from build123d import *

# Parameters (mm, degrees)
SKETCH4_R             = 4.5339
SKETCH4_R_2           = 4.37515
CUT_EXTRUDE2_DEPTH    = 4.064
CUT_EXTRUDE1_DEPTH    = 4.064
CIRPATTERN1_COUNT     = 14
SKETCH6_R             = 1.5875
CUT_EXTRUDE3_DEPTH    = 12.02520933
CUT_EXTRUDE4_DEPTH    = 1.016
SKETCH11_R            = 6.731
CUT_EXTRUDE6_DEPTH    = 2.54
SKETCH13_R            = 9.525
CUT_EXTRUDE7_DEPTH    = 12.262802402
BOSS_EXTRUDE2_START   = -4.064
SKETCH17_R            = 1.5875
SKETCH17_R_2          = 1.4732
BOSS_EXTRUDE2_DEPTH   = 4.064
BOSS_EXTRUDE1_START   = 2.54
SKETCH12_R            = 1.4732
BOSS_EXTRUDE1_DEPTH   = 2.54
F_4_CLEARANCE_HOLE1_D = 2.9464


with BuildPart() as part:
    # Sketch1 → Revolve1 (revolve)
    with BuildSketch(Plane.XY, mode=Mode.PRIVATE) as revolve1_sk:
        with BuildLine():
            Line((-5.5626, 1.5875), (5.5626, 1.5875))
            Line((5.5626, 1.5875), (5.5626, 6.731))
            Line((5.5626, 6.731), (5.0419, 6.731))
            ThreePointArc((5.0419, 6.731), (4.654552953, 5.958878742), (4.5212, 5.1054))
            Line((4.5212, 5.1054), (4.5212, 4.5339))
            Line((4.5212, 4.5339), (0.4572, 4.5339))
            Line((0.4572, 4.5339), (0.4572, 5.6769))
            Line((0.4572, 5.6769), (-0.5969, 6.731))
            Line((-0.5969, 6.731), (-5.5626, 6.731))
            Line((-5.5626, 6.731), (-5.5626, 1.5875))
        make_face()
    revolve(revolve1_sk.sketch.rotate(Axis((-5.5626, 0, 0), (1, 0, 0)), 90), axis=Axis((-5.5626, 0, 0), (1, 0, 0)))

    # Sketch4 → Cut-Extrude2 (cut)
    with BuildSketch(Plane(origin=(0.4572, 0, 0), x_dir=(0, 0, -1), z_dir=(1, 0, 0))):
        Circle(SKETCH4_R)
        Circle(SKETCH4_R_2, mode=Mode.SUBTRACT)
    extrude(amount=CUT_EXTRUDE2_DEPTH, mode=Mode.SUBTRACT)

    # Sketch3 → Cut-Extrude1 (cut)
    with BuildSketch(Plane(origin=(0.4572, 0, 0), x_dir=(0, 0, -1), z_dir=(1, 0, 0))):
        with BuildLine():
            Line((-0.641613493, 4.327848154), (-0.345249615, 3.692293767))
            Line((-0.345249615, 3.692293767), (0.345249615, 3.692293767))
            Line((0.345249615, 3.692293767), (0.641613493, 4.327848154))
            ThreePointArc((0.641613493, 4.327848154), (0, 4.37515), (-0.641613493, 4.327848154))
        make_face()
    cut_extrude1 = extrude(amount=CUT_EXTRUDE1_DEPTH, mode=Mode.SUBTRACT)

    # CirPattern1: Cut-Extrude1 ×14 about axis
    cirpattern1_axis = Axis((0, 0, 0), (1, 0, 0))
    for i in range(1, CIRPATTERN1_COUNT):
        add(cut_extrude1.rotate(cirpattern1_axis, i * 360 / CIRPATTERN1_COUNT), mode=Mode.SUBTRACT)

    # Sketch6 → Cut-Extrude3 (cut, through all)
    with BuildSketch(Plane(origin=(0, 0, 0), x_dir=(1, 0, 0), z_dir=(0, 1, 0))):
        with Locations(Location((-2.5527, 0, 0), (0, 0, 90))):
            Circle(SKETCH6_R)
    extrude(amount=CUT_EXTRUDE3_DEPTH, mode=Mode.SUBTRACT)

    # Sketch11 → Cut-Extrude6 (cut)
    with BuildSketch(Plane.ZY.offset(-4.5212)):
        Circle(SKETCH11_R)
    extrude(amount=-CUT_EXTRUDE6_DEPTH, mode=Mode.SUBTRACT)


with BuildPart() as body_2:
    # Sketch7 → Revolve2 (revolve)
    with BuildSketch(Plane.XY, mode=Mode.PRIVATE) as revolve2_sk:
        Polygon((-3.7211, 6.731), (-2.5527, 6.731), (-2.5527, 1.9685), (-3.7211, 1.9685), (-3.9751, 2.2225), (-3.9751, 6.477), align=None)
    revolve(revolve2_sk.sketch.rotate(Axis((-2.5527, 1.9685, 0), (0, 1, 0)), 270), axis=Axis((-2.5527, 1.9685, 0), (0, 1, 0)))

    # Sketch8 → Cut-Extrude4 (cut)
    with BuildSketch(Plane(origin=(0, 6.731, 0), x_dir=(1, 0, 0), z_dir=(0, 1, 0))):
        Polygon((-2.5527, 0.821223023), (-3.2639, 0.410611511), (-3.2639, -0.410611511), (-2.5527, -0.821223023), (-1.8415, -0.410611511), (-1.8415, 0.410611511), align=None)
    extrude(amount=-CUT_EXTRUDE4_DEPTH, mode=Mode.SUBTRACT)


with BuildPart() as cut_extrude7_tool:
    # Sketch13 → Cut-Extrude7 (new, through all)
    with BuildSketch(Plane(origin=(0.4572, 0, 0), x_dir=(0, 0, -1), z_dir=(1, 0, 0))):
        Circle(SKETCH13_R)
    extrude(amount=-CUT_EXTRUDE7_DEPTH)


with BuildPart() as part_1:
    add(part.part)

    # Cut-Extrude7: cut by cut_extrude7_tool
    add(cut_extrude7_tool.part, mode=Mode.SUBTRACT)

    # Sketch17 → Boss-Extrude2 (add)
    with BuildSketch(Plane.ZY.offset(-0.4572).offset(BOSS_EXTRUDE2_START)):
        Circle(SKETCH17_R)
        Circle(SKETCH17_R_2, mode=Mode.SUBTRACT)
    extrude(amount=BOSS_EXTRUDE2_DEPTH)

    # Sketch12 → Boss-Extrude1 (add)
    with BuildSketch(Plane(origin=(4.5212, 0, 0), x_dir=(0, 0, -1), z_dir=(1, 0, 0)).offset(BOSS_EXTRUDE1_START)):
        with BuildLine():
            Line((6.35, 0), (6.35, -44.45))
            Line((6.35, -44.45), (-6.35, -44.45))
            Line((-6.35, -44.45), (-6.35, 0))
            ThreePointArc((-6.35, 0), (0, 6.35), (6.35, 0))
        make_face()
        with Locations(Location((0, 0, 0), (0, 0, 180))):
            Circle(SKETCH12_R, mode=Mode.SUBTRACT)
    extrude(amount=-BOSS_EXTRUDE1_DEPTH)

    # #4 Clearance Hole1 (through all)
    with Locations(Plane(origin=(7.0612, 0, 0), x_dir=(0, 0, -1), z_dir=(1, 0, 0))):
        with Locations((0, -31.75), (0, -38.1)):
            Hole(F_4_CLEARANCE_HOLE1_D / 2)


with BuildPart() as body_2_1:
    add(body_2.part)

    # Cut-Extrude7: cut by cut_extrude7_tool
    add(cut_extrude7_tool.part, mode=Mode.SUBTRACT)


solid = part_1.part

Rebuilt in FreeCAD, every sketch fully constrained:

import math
import FreeCAD as App
import Part
import Sketcher
Q = App.Units.Quantity

doc = App.newDocument("Part")
body = doc.addObject("PartDesign::Body", "Body")

sketch1 = body.newObject("Sketcher::SketchObject", "Sketch")
sketch1.AttachmentSupport = (doc.getObject("XY_Plane"), [""])
sketch1.MapMode = "FlatFace"
sketch1.addGeometry(Part.LineSegment(App.Vector(-5.6, 1.6, 0), App.Vector(5.6, 1.6, 0)), False)
sketch1.addGeometry(Part.LineSegment(App.Vector(5.6, 1.6, 0), App.Vector(5.6, 6.7, 0)), False)
sketch1.addGeometry(Part.LineSegment(App.Vector(5.6, 6.7, 0), App.Vector(5, 6.7, 0)), False)
sketch1.addGeometry(Part.ArcOfCircle(Part.Circle(App.Vector(7.3, 5.1, 0), App.Vector(0, 0, 1), 2.8), math.radians(144), math.radians(180)), False)
sketch1.addGeometry(Part.LineSegment(App.Vector(4.5, 5.1, 0), App.Vector(4.5, 4.5, 0)), False)
sketch1.addGeometry(Part.LineSegment(App.Vector(4.5, 4.5, 0), App.Vector(0.5, 4.5, 0)), False)
sketch1.addGeometry(Part.LineSegment(App.Vector(0.5, 4.5, 0), App.Vector(0.5, 5.7, 0)), False)
sketch1.addGeometry(Part.LineSegment(App.Vector(0.5, 5.7, 0), App.Vector(-0.6, 6.7, 0)), False)
sketch1.addGeometry(Part.LineSegment(App.Vector(-0.6, 6.7, 0), App.Vector(-5.6, 6.7, 0)), False)
sketch1.addGeometry(Part.LineSegment(App.Vector(-5.6, 6.7, 0), App.Vector(-5.6, 1.6, 0)), False)
sketch1.addConstraint(Sketcher.Constraint("Coincident", 0, 2, 1, 1))
sketch1.addConstraint(Sketcher.Constraint("Coincident", 1, 2, 2, 1))
sketch1.addConstraint(Sketcher.Constraint("Coincident", 2, 2, 3, 1))
sketch1.addConstraint(Sketcher.Constraint("Tangent", 3, 2, 4, 1))
sketch1.addConstraint(Sketcher.Constraint("Coincident", 4, 2, 5, 1))
sketch1.addConstraint(Sketcher.Constraint("Coincident", 5, 2, 6, 1))
sketch1.addConstraint(Sketcher.Constraint("Coincident", 6, 2, 7, 1))
sketch1.addConstraint(Sketcher.Constraint("Coincident", 7, 2, 8, 1))
sketch1.addConstraint(Sketcher.Constraint("Coincident", 8, 2, 9, 1))
sketch1.addConstraint(Sketcher.Constraint("Coincident", 9, 2, 0, 1))
sketch1.addConstraint(Sketcher.Constraint("Horizontal", 0))
sketch1.addConstraint(Sketcher.Constraint("Vertical", 1))
sketch1.addConstraint(Sketcher.Constraint("Horizontal", 2))
sketch1.addConstraint(Sketcher.Constraint("Vertical", 4))
sketch1.addConstraint(Sketcher.Constraint("Horizontal", 5))
sketch1.addConstraint(Sketcher.Constraint("Vertical", 6))
sketch1.addConstraint(Sketcher.Constraint("Horizontal", 8))
sketch1.addConstraint(Sketcher.Constraint("Vertical", 9))
sketch1.addConstraint(Sketcher.Constraint("Symmetric", 1, 2, 8, 2, -2))
sketch1.addConstraint(Sketcher.Constraint("Angle", 7, Q("135 deg")))
sketch1.addConstraint(Sketcher.Constraint("DistanceX", 5, 2, 5, 1, Q("0.16 in")))
sketch1.addConstraint(Sketcher.Constraint("DistanceX", 0, 1, 0, 2, Q("0.438 in")))
sketch1.addConstraint(Sketcher.Constraint("DistanceY", 6, 1, 6, 2, Q("0.045 in")))
sketch1.addConstraint(Sketcher.Constraint("DistanceX", 2, 2, 2, 1, Q("0.0205 in")))
sketch1.addConstraint(Sketcher.Constraint("DistanceX", 8, 2, 8, 1, Q("0.1955 in")))
sketch1.addConstraint(Sketcher.Constraint("DistanceY", 1, 1, 1, 2, Q("0.2025 in")))
sketch1.addConstraint(Sketcher.Constraint("DistanceY", 4, 2, 4, 1, Q("0.0225 in")))
sketch1.addConstraint(Sketcher.Constraint("DistanceY", -1, 1, 3, 3, Q("0.201 in")))
sketch1.addConstraint(Sketcher.Constraint("DistanceY", -1, 1, 0, 2, Q("0.0625 in")))
revolution = body.newObject("PartDesign::Revolution", "Revolution")
revolution.Profile = sketch1
revolution.ReferenceAxis = (sketch1, ["H_Axis"])
revolution.Angle = 360

sketch2 = body.newObject("Sketcher::SketchObject", "Sketch001")
sketch2.AttachmentSupport = (doc.getObject("YZ_Plane"), [""])
sketch2.MapMode = "FlatFace"
sketch2.AttachmentOffset = App.Placement(App.Vector(0, 0, 0.018 * 25.4), App.Rotation())
sketch2.addGeometry(Part.Circle(App.Vector(0, 0, 0), App.Vector(0, 0, 1), 4.5), False)
sketch2.addGeometry(Part.Circle(App.Vector(0, 0, 0), App.Vector(0, 0, 1), 4.4), False)
sketch2.addConstraint(Sketcher.Constraint("Coincident", 0, 3, -1, 1))
sketch2.addConstraint(Sketcher.Constraint("Coincident", 1, 3, -1, 1))
sketch2.addConstraint(Sketcher.Constraint("Diameter", 0, Q("0.357 in")))
sketch2.addConstraint(Sketcher.Constraint("Diameter", 1, Q("0.3445 in")))
pocket1 = body.newObject("PartDesign::Pocket", "Pocket")
pocket1.Profile = sketch2
pocket1.Length = Q("0.16 in")
pocket1.Reversed = True

sketch3 = body.newObject("Sketcher::SketchObject", "Sketch002")
sketch3.AttachmentSupport = (doc.getObject("YZ_Plane"), [""])
sketch3.MapMode = "FlatFace"
sketch3.AttachmentOffset = App.Placement(App.Vector(0, 0, 0.018 * 25.4), App.Rotation())
sketch3.addGeometry(Part.LineSegment(App.Vector(4.3, 0.6, 0), App.Vector(3.7, 0.3, 0)), False)
sketch3.addGeometry(Part.LineSegment(App.Vector(3.7, 0.3, 0), App.Vector(3.7, -0.3, 0)), False)
sketch3.addGeometry(Part.LineSegment(App.Vector(3.7, -0.3, 0), App.Vector(4.3, -0.6, 0)), False)
sketch3.addGeometry(Part.ArcOfCircle(Part.Circle(App.Vector(0, 0, 0), App.Vector(0, 0, 1), 4.4), math.radians(-8.43), math.radians(8.43)), False)
sketch3.addConstraint(Sketcher.Constraint("Coincident", 0, 2, 1, 1))
sketch3.addConstraint(Sketcher.Constraint("Coincident", 1, 2, 2, 1))
sketch3.addConstraint(Sketcher.Constraint("Coincident", 2, 2, 3, 1))
sketch3.addConstraint(Sketcher.Constraint("Coincident", 3, 2, 0, 1))
sketch3.addConstraint(Sketcher.Constraint("Vertical", 1))
sketch3.addConstraint(Sketcher.Constraint("Coincident", 3, 3, -1, 1))
sketch3.addConstraint(Sketcher.Constraint("Vertical", 2, 2, 3, 2))
sketch3.addConstraint(Sketcher.Constraint("Equal", 0, 2))
sketch3.addConstraint(Sketcher.Constraint("Angle", 0, Q("-155 deg")))
sketch3.addConstraint(Sketcher.Constraint("Radius", 3, Q("4.37515 mm")))
sketch3.addConstraint(Sketcher.Constraint("DistanceY", 1, 2, 1, 1, Q("0.690499 mm")))
sketch3.addConstraint(Sketcher.Constraint("DistanceX", -1, 1, 2, 2, Q("4.327848 mm")))
pocket2 = body.newObject("PartDesign::Pocket", "Pocket001")
pocket2.Profile = sketch3
pocket2.Length = Q("0.16 in")
pocket2.Reversed = True
doc.recompute()

polarpattern = body.newObject("PartDesign::PolarPattern", "PolarPattern")
polarpattern.Originals = [pocket2]
polarpattern.Axis = (doc.getObject("X_Axis"), [""])
polarpattern.Angle = 360
polarpattern.Occurrences = 14
body.Tip = polarpattern

sketch4 = body.newObject("Sketcher::SketchObject", "Sketch003")
sketch4.AttachmentSupport = (doc.getObject("XZ_Plane"), [""])
sketch4.MapMode = "FlatFace"
sketch4.addGeometry(Part.Circle(App.Vector(-2.6, 0, 0), App.Vector(0, 0, 1), 1.6), False)
sketch4.addConstraint(Sketcher.Constraint("PointOnObject", 0, 3, -1))
sketch4.addConstraint(Sketcher.Constraint("Diameter", 0, Q("0.125 in")))
sketch4.addConstraint(Sketcher.Constraint("DistanceX", 0, 3, -1, 1, Q("0.1005 in")))
pocket3 = body.newObject("PartDesign::Pocket", "Pocket002")
pocket3.Profile = sketch4
pocket3.Type = "ThroughAll"

sketch5 = body.newObject("Sketcher::SketchObject", "Sketch004")
sketch5.AttachmentSupport = (doc.getObject("YZ_Plane"), [""])
sketch5.MapMode = "FlatFace"
sketch5.AttachmentOffset = App.Placement(App.Vector(0, 0, 0.178 * 25.4), App.Rotation())
sketch5.addGeometry(Part.Circle(App.Vector(0, 0, 0), App.Vector(0, 0, 1), 7), False)
sketch5.addConstraint(Sketcher.Constraint("Coincident", 0, 3, -1, 1))
sketch5.addConstraint(Sketcher.Constraint("Diameter", 0, Q("0.53 in")))
pocket4 = body.newObject("PartDesign::Pocket", "Pocket003")
pocket4.Profile = sketch5
pocket4.Length = Q("0.1 in")
pocket4.Reversed = True
body2 = doc.addObject("PartDesign::Body", "Body001")

sketch6 = body2.newObject("Sketcher::SketchObject", "Sketch005")
sketch6.AttachmentSupport = (doc.getObject("XY_Plane001"), [""])
sketch6.MapMode = "FlatFace"
sketch6.addGeometry(Part.LineSegment(App.Vector(-2.55, 6.73, 0), App.Vector(-3.72, 6.73, 0)), False)
sketch6.addGeometry(Part.LineSegment(App.Vector(-3.72, 6.73, 0), App.Vector(-3.98, 6.48, 0)), False)
sketch6.addGeometry(Part.LineSegment(App.Vector(-3.98, 6.48, 0), App.Vector(-3.98, 2.22, 0)), False)
sketch6.addGeometry(Part.LineSegment(App.Vector(-3.98, 2.22, 0), App.Vector(-3.72, 1.97, 0)), False)
sketch6.addGeometry(Part.LineSegment(App.Vector(-3.72, 1.97, 0), App.Vector(-2.55, 1.97, 0)), False)
sketch6.addGeometry(Part.LineSegment(App.Vector(-2.55, 1.97, 0), App.Vector(-2.55, 6.73, 0)), False)
sketch6.addGeometry(Part.LineSegment(App.Vector(-2.55, 1.97, 0), App.Vector(-2.55, 6.73, 0)), True)
sketch6.addConstraint(Sketcher.Constraint("Coincident", 0, 2, 1, 1))
sketch6.addConstraint(Sketcher.Constraint("Coincident", 1, 2, 2, 1))
sketch6.addConstraint(Sketcher.Constraint("Coincident", 2, 2, 3, 1))
sketch6.addConstraint(Sketcher.Constraint("Coincident", 3, 2, 4, 1))
sketch6.addConstraint(Sketcher.Constraint("Coincident", 4, 2, 5, 1))
sketch6.addConstraint(Sketcher.Constraint("Coincident", 5, 2, 0, 1))
sketch6.addConstraint(Sketcher.Constraint("Horizontal", 0))
sketch6.addConstraint(Sketcher.Constraint("Vertical", 2))
sketch6.addConstraint(Sketcher.Constraint("Horizontal", 4))
sketch6.addConstraint(Sketcher.Constraint("Vertical", 5))
sketch6.addConstraint(Sketcher.Constraint("Vertical", 6))
sketch6.addConstraint(Sketcher.Constraint("Coincident", 6, 1, 4, 2))
sketch6.addConstraint(Sketcher.Constraint("Perpendicular", 1, 3))
sketch6.addConstraint(Sketcher.Constraint("Horizontal", 0, 2, 6, 2))
sketch6.addConstraint(Sketcher.Constraint("Vertical", 0, 2, 3, 2))
sketch6.addConstraint(Sketcher.Constraint("Equal", 1, 3))
sketch6.addConstraint(Sketcher.Constraint("DistanceX", 0, 2, 0, 1, Q("0.046 in")))
sketch6.addConstraint(Sketcher.Constraint("DistanceY", 5, 1, 5, 2, Q("0.1875 in")))
sketch6.addConstraint(Sketcher.Constraint("DistanceX", 1, 2, 0, 2, Q("0.01 in")))
sketch6.addConstraint(Sketcher.Constraint("DistanceY", -1, 1, 0, 2, Q("0.265 in")))
sketch6.addConstraint(Sketcher.Constraint("DistanceX", 0, 2, -1, 1, Q("0.1465 in")))
revolution2 = body2.newObject("PartDesign::Revolution", "Revolution001")
revolution2.Profile = sketch6
revolution2.ReferenceAxis = (sketch6, ["Axis0"])
revolution2.Angle = 360

sketch7 = body2.newObject("Sketcher::SketchObject", "Sketch006")
sketch7.AttachmentSupport = (doc.getObject("XZ_Plane001"), [""])
sketch7.MapMode = "FlatFace"
sketch7.AttachmentOffset = App.Placement(App.Vector(0, 0, -0.265 * 25.4), App.Rotation())
sketch7.addGeometry(Part.LineSegment(App.Vector(-2.6, -0.8, 0), App.Vector(-3.3, -0.4, 0)), False)
sketch7.addGeometry(Part.LineSegment(App.Vector(-3.3, -0.4, 0), App.Vector(-3.3, 0.4, 0)), False)
sketch7.addGeometry(Part.LineSegment(App.Vector(-3.3, 0.4, 0), App.Vector(-2.6, 0.8, 0)), False)
sketch7.addGeometry(Part.LineSegment(App.Vector(-2.6, 0.8, 0), App.Vector(-1.8, 0.4, 0)), False)
sketch7.addGeometry(Part.LineSegment(App.Vector(-1.8, 0.4, 0), App.Vector(-1.8, -0.4, 0)), False)
sketch7.addGeometry(Part.LineSegment(App.Vector(-1.8, -0.4, 0), App.Vector(-2.6, -0.8, 0)), False)
sketch7.addConstraint(Sketcher.Constraint("Coincident", 0, 2, 1, 1))
sketch7.addConstraint(Sketcher.Constraint("Coincident", 1, 2, 2, 1))
sketch7.addConstraint(Sketcher.Constraint("Coincident", 2, 2, 3, 1))
sketch7.addConstraint(Sketcher.Constraint("Coincident", 3, 2, 4, 1))
sketch7.addConstraint(Sketcher.Constraint("Coincident", 4, 2, 5, 1))
sketch7.addConstraint(Sketcher.Constraint("Coincident", 5, 2, 0, 1))
sketch7.addConstraint(Sketcher.Constraint("Vertical", 1))
sketch7.addConstraint(Sketcher.Constraint("Vertical", 4))
sketch7.addConstraint(Sketcher.Constraint("Symmetric", 2, 2, 5, 2, -1))
sketch7.addConstraint(Sketcher.Constraint("Parallel", 0, 3))
sketch7.addConstraint(Sketcher.Constraint("Parallel", 2, 5))
sketch7.addConstraint(Sketcher.Constraint("Horizontal", 1, 2, 3, 2))
sketch7.addConstraint(Sketcher.Constraint("Horizontal", 0, 2, 4, 2))
sketch7.addConstraint(Sketcher.Constraint("Angle", 0, Q("150 deg")))
sketch7.addConstraint(Sketcher.Constraint("DistanceX", 1, 2, 2, 2, Q("0.028 in")))
sketch7.addConstraint(Sketcher.Constraint("DistanceX", 0, 2, -1, 1, Q("0.1285 in")))
sketch7.addConstraint(Sketcher.Constraint("DistanceY", 1, 1, 1, 2, Q("0.821223 mm")))
pocket5 = body2.newObject("PartDesign::Pocket", "Pocket004")
pocket5.Profile = sketch7
pocket5.Length = Q("0.04 in")
pocket5.Reversed = True
body3 = doc.addObject("PartDesign::Body", "Body002")

sketch8 = body3.newObject("Sketcher::SketchObject", "Sketch007")
sketch8.AttachmentSupport = (doc.getObject("YZ_Plane002"), [""])
sketch8.MapMode = "FlatFace"
sketch8.AttachmentOffset = App.Placement(App.Vector(0, 0, 0.018 * 25.4), App.Rotation())
sketch8.addGeometry(Part.Circle(App.Vector(0, 0, 0), App.Vector(0, 0, 1), 10), False)
sketch8.addConstraint(Sketcher.Constraint("Coincident", 0, 3, -1, 1))
sketch8.addConstraint(Sketcher.Constraint("Diameter", 0, Q("0.75 in")))
pad1 = body3.newObject("PartDesign::Pad", "Pad")
pad1.Profile = sketch8
pad1.Length = 12.262802
pad1.Reversed = True
doc.recompute()

body4 = doc.addObject("PartDesign::Body", "Body003")
body4.BaseFeature = body3
boolean = body.newObject("PartDesign::Boolean", "Boolean")
boolean.Type = "Cut"
boolean.addObjects([body4])
doc.recompute()

sketch9 = body.newObject("Sketcher::SketchObject", "Sketch008")
sketch9.AttachmentSupport = (doc.getObject("YZ_Plane"), [""])
sketch9.MapMode = "FlatFace"
sketch9.AttachmentOffset = App.Placement(App.Vector(0, 0, 0.178 * 25.4), App.Rotation())
sketch9.addGeometry(Part.Circle(App.Vector(0, 0, 0), App.Vector(0, 0, 1), 1.6), False)
sketch9.addGeometry(Part.Circle(App.Vector(0, 0, 0), App.Vector(0, 0, 1), 1.5), False)
sketch9.addConstraint(Sketcher.Constraint("Coincident", 0, 3, -1, 1))
sketch9.addConstraint(Sketcher.Constraint("Coincident", 1, 3, -1, 1))
sketch9.addConstraint(Sketcher.Constraint("Diameter", 0, Q("0.125 in")))
sketch9.addConstraint(Sketcher.Constraint("Diameter", 1, Q("0.116 in")))
pad2 = body.newObject("PartDesign::Pad", "Pad001")
pad2.Profile = sketch9
pad2.Length = Q("0.16 in")
pad2.Reversed = True

sketch10 = body.newObject("Sketcher::SketchObject", "Sketch009")
sketch10.AttachmentSupport = (doc.getObject("YZ_Plane"), [""])
sketch10.MapMode = "FlatFace"
sketch10.AttachmentOffset = App.Placement(App.Vector(0, 0, 0.278 * 25.4), App.Rotation())
sketch10.addGeometry(Part.LineSegment(App.Vector(-44.5, -6.3, 0), App.Vector(0, -6.3, 0)), False)
sketch10.addGeometry(Part.ArcOfCircle(Part.Circle(App.Vector(0, 0, 0), App.Vector(0, 0, 1), 6.3), math.radians(-90), math.radians(90)), False)
sketch10.addGeometry(Part.LineSegment(App.Vector(0, 6.3, 0), App.Vector(-44.5, 6.3, 0)), False)
sketch10.addGeometry(Part.LineSegment(App.Vector(-44.5, 6.3, 0), App.Vector(-44.5, -6.3, 0)), False)
sketch10.addGeometry(Part.Circle(App.Vector(0, 0, 0), App.Vector(0, 0, 1), 1.5), False)
sketch10.addConstraint(Sketcher.Constraint("Tangent", 0, 2, 1, 1))
sketch10.addConstraint(Sketcher.Constraint("Tangent", 1, 2, 2, 1))
sketch10.addConstraint(Sketcher.Constraint("Coincident", 2, 2, 3, 1))
sketch10.addConstraint(Sketcher.Constraint("Coincident", 3, 2, 0, 1))
sketch10.addConstraint(Sketcher.Constraint("Horizontal", 0))
sketch10.addConstraint(Sketcher.Constraint("Horizontal", 2))
sketch10.addConstraint(Sketcher.Constraint("Vertical", 3))
sketch10.addConstraint(Sketcher.Constraint("Coincident", 1, 3, -1, 1))
sketch10.addConstraint(Sketcher.Constraint("Coincident", 4, 3, -1, 1))
sketch10.addConstraint(Sketcher.Constraint("Radius", 1, Q("0.25 in")))
sketch10.addConstraint(Sketcher.Constraint("Diameter", 4, Q("0.116 in")))
sketch10.addConstraint(Sketcher.Constraint("DistanceX", 0, 1, 0, 2, Q("1.75 in")))
pad3 = body.newObject("PartDesign::Pad", "Pad002")
pad3.Profile = sketch10
pad3.Length = Q("0.1 in")
pad3.Reversed = True

sketch11 = body.newObject("Sketcher::SketchObject", "Sketch010")
sketch11.AttachmentSupport = (doc.getObject("YZ_Plane"), [""])
sketch11.MapMode = "FlatFace"
sketch11.AttachmentOffset = App.Placement(App.Vector(0, 0, 0.278 * 25.4), App.Rotation())
sketch11.addGeometry(Part.Circle(App.Vector(-31.8, 0, 0), App.Vector(0, 0, 1), 1.5), False)
sketch11.addGeometry(Part.Circle(App.Vector(-38.1, 0, 0), App.Vector(0, 0, 1), 1.5), False)
sketch11.addConstraint(Sketcher.Constraint("Equal", 0, 1))
sketch11.addConstraint(Sketcher.Constraint("PointOnObject", 0, 3, -1))
sketch11.addConstraint(Sketcher.Constraint("PointOnObject", 1, 3, -1))
sketch11.addConstraint(Sketcher.Constraint("Diameter", 0, Q("0.116 in")))
sketch11.addConstraint(Sketcher.Constraint("DistanceX", 1, 3, -1, 1, Q("1.5 in")))
sketch11.addConstraint(Sketcher.Constraint("DistanceX", 0, 3, -1, 1, Q("1.25 in")))
doc.recompute()
hole = body.newObject("PartDesign::Hole", "Hole")
hole.Profile = sketch11
hole.ThreadType = "None"
hole.Diameter = Q("0.116 in")
hole.DepthType = "ThroughAll"
doc.recompute()

boolean2 = body2.newObject("PartDesign::Boolean", "Boolean001")
boolean2.Type = "Cut"
boolean2.addObjects([body3])

doc.recompute()
